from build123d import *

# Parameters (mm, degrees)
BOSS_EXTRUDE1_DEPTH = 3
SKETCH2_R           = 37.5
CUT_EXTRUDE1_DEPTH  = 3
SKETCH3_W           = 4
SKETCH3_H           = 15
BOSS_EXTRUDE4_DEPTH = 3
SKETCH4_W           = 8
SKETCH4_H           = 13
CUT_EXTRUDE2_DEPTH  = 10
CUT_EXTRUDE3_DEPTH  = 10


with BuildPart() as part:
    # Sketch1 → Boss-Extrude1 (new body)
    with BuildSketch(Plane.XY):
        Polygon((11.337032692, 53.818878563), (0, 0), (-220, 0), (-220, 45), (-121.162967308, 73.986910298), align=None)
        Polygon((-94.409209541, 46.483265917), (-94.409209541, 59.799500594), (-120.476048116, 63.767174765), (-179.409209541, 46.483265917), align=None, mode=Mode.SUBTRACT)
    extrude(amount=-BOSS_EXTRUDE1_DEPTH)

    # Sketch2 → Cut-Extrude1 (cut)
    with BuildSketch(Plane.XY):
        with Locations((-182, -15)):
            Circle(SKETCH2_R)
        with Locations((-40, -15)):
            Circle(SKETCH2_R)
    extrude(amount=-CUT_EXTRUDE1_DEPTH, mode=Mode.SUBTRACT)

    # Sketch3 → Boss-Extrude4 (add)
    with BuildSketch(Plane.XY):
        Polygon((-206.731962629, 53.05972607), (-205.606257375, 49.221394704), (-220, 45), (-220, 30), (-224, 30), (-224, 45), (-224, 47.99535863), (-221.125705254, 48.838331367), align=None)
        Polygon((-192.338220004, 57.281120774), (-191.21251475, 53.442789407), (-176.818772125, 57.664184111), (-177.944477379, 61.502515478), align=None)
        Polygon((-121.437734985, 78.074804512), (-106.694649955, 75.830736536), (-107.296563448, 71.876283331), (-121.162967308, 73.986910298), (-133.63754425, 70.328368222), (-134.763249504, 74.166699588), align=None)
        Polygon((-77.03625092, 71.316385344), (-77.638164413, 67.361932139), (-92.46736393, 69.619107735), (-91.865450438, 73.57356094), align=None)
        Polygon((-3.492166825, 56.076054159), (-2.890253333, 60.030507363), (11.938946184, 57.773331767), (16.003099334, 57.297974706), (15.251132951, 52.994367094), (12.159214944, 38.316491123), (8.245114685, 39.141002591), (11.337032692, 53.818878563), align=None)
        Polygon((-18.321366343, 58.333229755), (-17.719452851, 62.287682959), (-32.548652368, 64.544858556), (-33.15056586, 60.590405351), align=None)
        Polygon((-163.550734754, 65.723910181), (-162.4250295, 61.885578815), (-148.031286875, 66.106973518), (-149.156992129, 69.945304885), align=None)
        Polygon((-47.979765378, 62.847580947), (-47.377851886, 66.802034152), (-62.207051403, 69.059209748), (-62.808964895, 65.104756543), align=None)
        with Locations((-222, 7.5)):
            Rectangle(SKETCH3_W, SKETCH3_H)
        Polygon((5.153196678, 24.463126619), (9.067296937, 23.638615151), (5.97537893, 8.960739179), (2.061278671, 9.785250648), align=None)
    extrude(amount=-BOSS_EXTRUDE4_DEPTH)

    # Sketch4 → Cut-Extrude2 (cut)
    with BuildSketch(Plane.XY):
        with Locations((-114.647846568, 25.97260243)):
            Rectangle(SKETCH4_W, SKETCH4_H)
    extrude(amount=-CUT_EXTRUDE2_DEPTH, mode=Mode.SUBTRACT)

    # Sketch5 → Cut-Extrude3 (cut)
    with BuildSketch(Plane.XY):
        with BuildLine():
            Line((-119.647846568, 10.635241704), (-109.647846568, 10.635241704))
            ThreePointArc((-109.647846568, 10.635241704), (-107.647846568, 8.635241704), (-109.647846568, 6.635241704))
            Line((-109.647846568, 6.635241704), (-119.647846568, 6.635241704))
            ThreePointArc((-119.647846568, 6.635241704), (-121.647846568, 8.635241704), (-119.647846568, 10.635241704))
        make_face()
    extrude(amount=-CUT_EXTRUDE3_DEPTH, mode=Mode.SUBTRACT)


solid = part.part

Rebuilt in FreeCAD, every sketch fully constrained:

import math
import FreeCAD as App
import Part
import Sketcher
from FreeCAD import Vector
Q = App.Units.Quantity

doc = App.newDocument("Part")
body = doc.addObject("PartDesign::Body", "Body")

sketch1 = body.newObject("Sketcher::SketchObject", "Sketch")
sketch1.AttachmentSupport = (doc.getObject("XY_Plane"), [""])
sketch1.MapMode = "FlatFace"
sketch1.addGeometry([
    Part.LineSegment(Vector(0, 0, 0), Vector(11, 54, 0)),
    Part.LineSegment(Vector(11, 54, 0), Vector(-121, 74, 0)),
    Part.LineSegment(Vector(-121, 74, 0), Vector(-220, 45, 0)),
    Part.LineSegment(Vector(-220, 45, 0), Vector(-220, 0, 0)),
    Part.LineSegment(Vector(-220, 0, 0), Vector(0, 0, 0)),
    Part.LineSegment(Vector(-94, 46, 0), Vector(-179, 46, 0)),
    Part.LineSegment(Vector(-179, 46, 0), Vector(-120, 64, 0)),
    Part.LineSegment(Vector(-120, 64, 0), Vector(-94, 60, 0)),
    Part.LineSegment(Vector(-94, 60, 0), Vector(-94, 46, 0)),
], False)
sketch1.addConstraint([
    Sketcher.Constraint("Coincident", 0, 2, 1, 1),
    Sketcher.Constraint("Coincident", 1, 2, 2, 1),
    Sketcher.Constraint("Coincident", 2, 2, 3, 1),
    Sketcher.Constraint("Coincident", 3, 2, 4, 1),
    Sketcher.Constraint("Coincident", 4, 2, 0, 1),
    Sketcher.Constraint("Coincident", 5, 2, 6, 1),
    Sketcher.Constraint("Coincident", 6, 2, 7, 1),
    Sketcher.Constraint("Coincident", 7, 2, 8, 1),
    Sketcher.Constraint("Coincident", 8, 2, 5, 1),
    Sketcher.Constraint("Vertical", 3),
    Sketcher.Constraint("Horizontal", 4),
    Sketcher.Constraint("Horizontal", 5),
    Sketcher.Constraint("Vertical", 8),
    Sketcher.Constraint("Coincident", 4, 2, -1, 1),
    Sketcher.Constraint("Parallel", 2, 6),
    Sketcher.Constraint("Parallel", 1, 7),
    Sketcher.Constraint("DistanceX", 4, 1, 4, 2, Q("220 mm")),
    Sketcher.Constraint("DistanceX", 5, 2, 5, 1, Q("85 mm")),
    Sketcher.Constraint("DistanceY", 3, 2, 3, 1, Q("45 mm")),
    Sketcher.Constraint("Distance", 0, Q("55 mm")),
    Sketcher.Constraint("Distance", 2, Q("103 mm")),
    Sketcher.Constraint("DistanceX", 1, 2, 0, 2, Q("132.5 mm")),
    Sketcher.Constraint("DistanceY", -1, 1, 7, 2, Q("59.799501 mm")),
    Sketcher.Constraint("DistanceY", 8, 2, 8, 1, Q("13.316235 mm")),
    Sketcher.Constraint("DistanceY", -1, 1, 0, 2, Q("53.818879 mm")),
    Sketcher.Constraint("DistanceX", 5, 2, -1, 1, Q("179.40921 mm")),
])
pad1 = body.newObject("PartDesign::Pad", "Pad")
pad1.Profile = sketch1
pad1.Length = 3
pad1.Reversed = True

sketch2 = body.newObject("Sketcher::SketchObject", "Sketch001")
sketch2.AttachmentSupport = (doc.getObject("XY_Plane"), [""])
sketch2.MapMode = "FlatFace"
sketch2.addGeometry([
    Part.Circle(Vector(-182, -15, 0), Vector(0, 0, 1), 38),
    Part.Circle(Vector(-40, -15, 0), Vector(0, 0, 1), 38),
], False)
sketch2.addConstraint([
    Sketcher.Constraint("Equal", 0, 1),
    Sketcher.Constraint("Horizontal", 0, 3, 1, 3),
    Sketcher.Constraint("Diameter", 0, Q("75 mm")),
    Sketcher.Constraint("DistanceX", 0, 3, -1, 1, Q("182 mm")),
    Sketcher.Constraint("DistanceY", 0, 3, -1, 1, Q("15 mm")),
    Sketcher.Constraint("DistanceX", 1, 3, -1, 1, Q("40 mm")),
])
pocket1 = body.newObject("PartDesign::Pocket", "Pocket")
pocket1.Profile = sketch2
pocket1.Length = 3

sketch3 = body.newObject("Sketcher::SketchObject", "Sketch002")
sketch3.AttachmentSupport = (doc.getObject("XY_Plane"), [""])
sketch3.MapMode = "FlatFace"
sketch3.addGeometry([
    Part.LineSegment(Vector(-205.6, 49.2, 0), Vector(-206.7, 53.1, 0)),
    Part.LineSegment(Vector(-206.7, 53.1, 0), Vector(-221.1, 48.8, 0)),
    Part.LineSegment(Vector(-221.1, 48.8, 0), Vector(-224, 48, 0)),
    Part.LineSegment(Vector(-224, 48, 0), Vector(-224, 30, 0)),
    Part.LineSegment(Vector(-224, 30, 0), Vector(-220, 30, 0)),
    Part.LineSegment(Vector(-220, 30, 0), Vector(-220, 45, 0)),
    Part.LineSegment(Vector(-220, 45, 0), Vector(-205.6, 49.2, 0)),
    Part.LineSegment(Vector(-192.3, 57.3, 0), Vector(-191.2, 53.4, 0)),
    Part.LineSegment(Vector(-191.2, 53.4, 0), Vector(-176.8, 57.7, 0)),
    Part.LineSegment(Vector(-176.8, 57.7, 0), Vector(-177.9, 61.5, 0)),
    Part.LineSegment(Vector(-177.9, 61.5, 0), Vector(-192.3, 57.3, 0)),
    Part.LineSegment(Vector(-106.7, 75.8, 0), Vector(-121.4, 78.1, 0)),
    Part.LineSegment(Vector(-121.4, 78.1, 0), Vector(-134.8, 74.2, 0)),
    Part.LineSegment(Vector(-134.8, 74.2, 0), Vector(-133.6, 70.3, 0)),
    Part.LineSegment(Vector(-133.6, 70.3, 0), Vector(-121.2, 74, 0)),
    Part.LineSegment(Vector(-121.2, 74, 0), Vector(-107.3, 71.9, 0)),
    Part.LineSegment(Vector(-107.3, 71.9, 0), Vector(-106.7, 75.8, 0)),
    Part.LineSegment(Vector(-77.6, 67.4, 0), Vector(-77, 71.3, 0)),
    Part.LineSegment(Vector(-77, 71.3, 0), Vector(-91.9, 73.6, 0)),
    Part.LineSegment(Vector(-91.9, 73.6, 0), Vector(-92.5, 69.6, 0)),
    Part.LineSegment(Vector(-92.5, 69.6, 0), Vector(-77.6, 67.4, 0)),
    Part.LineSegment(Vector(-2.9, 60, 0), Vector(-3.5, 56.1, 0)),
    Part.LineSegment(Vector(-3.5, 56.1, 0), Vector(11.3, 53.8, 0)),
    Part.LineSegment(Vector(11.3, 53.8, 0), Vector(8.2, 39.1, 0)),
    Part.LineSegment(Vector(8.2, 39.1, 0), Vector(12.2, 38.3, 0)),
    Part.LineSegment(Vector(12.2, 38.3, 0), Vector(15.3, 53, 0)),
    Part.LineSegment(Vector(15.3, 53, 0), Vector(16, 57.3, 0)),
    Part.LineSegment(Vector(16, 57.3, 0), Vector(11.9, 57.8, 0)),
    Part.LineSegment(Vector(11.9, 57.8, 0), Vector(-2.9, 60, 0)),
    Part.LineSegment(Vector(-18.3, 58.3, 0), Vector(-17.7, 62.3, 0)),
    Part.LineSegment(Vector(-17.7, 62.3, 0), Vector(-32.5, 64.5, 0)),
    Part.LineSegment(Vector(-32.5, 64.5, 0), Vector(-33.2, 60.6, 0)),
    Part.LineSegment(Vector(-33.2, 60.6, 0), Vector(-18.3, 58.3, 0)),
    Part.LineSegment(Vector(-163.6, 65.7, 0), Vector(-162.4, 61.9, 0)),
    Part.LineSegment(Vector(-162.4, 61.9, 0), Vector(-148, 66.1, 0)),
    Part.LineSegment(Vector(-148, 66.1, 0), Vector(-149.2, 69.9, 0)),
    Part.LineSegment(Vector(-149.2, 69.9, 0), Vector(-163.6, 65.7, 0)),
    Part.LineSegment(Vector(-48, 62.8, 0), Vector(-47.4, 66.8, 0)),
    Part.LineSegment(Vector(-47.4, 66.8, 0), Vector(-62.2, 69.1, 0)),
    Part.LineSegment(Vector(-62.2, 69.1, 0), Vector(-62.8, 65.1, 0)),
    Part.LineSegment(Vector(-62.8, 65.1, 0), Vector(-48, 62.8, 0)),
    Part.LineSegment(Vector(-224, 15, 0), Vector(-224, 0, 0)),
    Part.LineSegment(Vector(-224, 0, 0), Vector(-220, 0, 0)),
    Part.LineSegment(Vector(-220, 0, 0), Vector(-220, 15, 0)),
    Part.LineSegment(Vector(-220, 15, 0), Vector(-224, 15, 0)),
    Part.LineSegment(Vector(9.1, 23.6, 0), Vector(5.2, 24.5, 0)),
    Part.LineSegment(Vector(5.2, 24.5, 0), Vector(2.1, 9.8, 0)),
    Part.LineSegment(Vector(2.1, 9.8, 0), Vector(6, 9, 0)),
    Part.LineSegment(Vector(6, 9, 0), Vector(9.1, 23.6, 0)),
], False)
sketch3.addConstraint([
    Sketcher.Constraint("Coincident", 0, 2, 1, 1),
    Sketcher.Constraint("Coincident", 1, 2, 2, 1),
    Sketcher.Constraint("Coincident", 2, 2, 3, 1),
    Sketcher.Constraint("Coincident", 3, 2, 4, 1),
    Sketcher.Constraint("Coincident", 4, 2, 5, 1),
    Sketcher.Constraint("Coincident", 5, 2, 6, 1),
    Sketcher.Constraint("Coincident", 6, 2, 0, 1),
    Sketcher.Constraint("Coincident", 7, 2, 8, 1),
    Sketcher.Constraint("Coincident", 8, 2, 9, 1),
    Sketcher.Constraint("Coincident", 9, 2, 10, 1),
    Sketcher.Constraint("Coincident", 10, 2, 7, 1),
    Sketcher.Constraint("Coincident", 11, 2, 12, 1),
    Sketcher.Constraint("Coincident", 12, 2, 13, 1),
    Sketcher.Constraint("Coincident", 13, 2, 14, 1),
    Sketcher.Constraint("Coincident", 14, 2, 15, 1),
    Sketcher.Constraint("Coincident", 15, 2, 16, 1),
    Sketcher.Constraint("Coincident", 16, 2, 11, 1),
    Sketcher.Constraint("Coincident", 17, 2, 18, 1),
    Sketcher.Constraint("Coincident", 18, 2, 19, 1),
    Sketcher.Constraint("Coincident", 19, 2, 20, 1),
    Sketcher.Constraint("Coincident", 20, 2, 17, 1),
    Sketcher.Constraint("Coincident", 21, 2, 22, 1),
    Sketcher.Constraint("Coincident", 22, 2, 23, 1),
    Sketcher.Constraint("Coincident", 23, 2, 24, 1),
    Sketcher.Constraint("Coincident", 24, 2, 25, 1),
    Sketcher.Constraint("Coincident", 25, 2, 26, 1),
    Sketcher.Constraint("Coincident", 26, 2, 27, 1),
    Sketcher.Constraint("Coincident", 27, 2, 28, 1),
    Sketcher.Constraint("Coincident", 28, 2, 21, 1),
    Sketcher.Constraint("Coincident", 29, 2, 30, 1),
    Sketcher.Constraint("Coincident", 30, 2, 31, 1),
    Sketcher.Constraint("Coincident", 31, 2, 32, 1),
    Sketcher.Constraint("Coincident", 32, 2, 29, 1),
    Sketcher.Constraint("Coincident", 33, 2, 34, 1),
    Sketcher.Constraint("Coincident", 34, 2, 35, 1),
    Sketcher.Constraint("Coincident", 35, 2, 36, 1),
    Sketcher.Constraint("Coincident", 36, 2, 33, 1),
    Sketcher.Constraint("Coincident", 37, 2, 38, 1),
    Sketcher.Constraint("Coincident", 38, 2, 39, 1),
    Sketcher.Constraint("Coincident", 39, 2, 40, 1),
    Sketcher.Constraint("Coincident", 40, 2, 37, 1),
    Sketcher.Constraint("Coincident", 41, 2, 42, 1),
    Sketcher.Constraint("Coincident", 42, 2, 43, 1),
    Sketcher.Constraint("Coincident", 43, 2, 44, 1),
    Sketcher.Constraint("Coincident", 44, 2, 41, 1),
    Sketcher.Constraint("Coincident", 45, 2, 46, 1),
    Sketcher.Constraint("Coincident", 46, 2, 47, 1),
    Sketcher.Constraint("Coincident", 47, 2, 48, 1),
    Sketcher.Constraint("Coincident", 48, 2, 45, 1),
    Sketcher.Constraint("Vertical", 3),
    Sketcher.Constraint("Horizontal", 4),
    Sketcher.Constraint("Vertical", 5),
    Sketcher.Constraint("Vertical", 41),
    Sketcher.Constraint("Horizontal", 42),
    Sketcher.Constraint("Vertical", 43),
    Sketcher.Constraint("Horizontal", 44),
    Sketcher.Constraint("PointOnObject", 41, 2, -1),
    Sketcher.Constraint("Perpendicular", 0, 1),
    Sketcher.Constraint("Parallel", 1, 2),
    Sketcher.Constraint("Parallel", 2, 6),
    Sketcher.Constraint("Perpendicular", 6, 7),
    Sketcher.Constraint("Perpendicular", 7, 8),
    Sketcher.Constraint("Perpendicular", 8, 9),
    Sketcher.Constraint("Perpendicular", 9, 10),
    Sketcher.Constraint("Parallel", 10, 12),
    Sketcher.Constraint("Perpendicular", 12, 13),
    Sketcher.Constraint("Perpendicular", 13, 14),
    Sketcher.Constraint("Parallel", 11, 15),
    Sketcher.Constraint("Perpendicular", 15, 16),
    Sketcher.Constraint("Parallel", 16, 17),
    Sketcher.Constraint("Perpendicular", 17, 18),
    Sketcher.Constraint("Perpendicular", 18, 19),
    Sketcher.Constraint("Perpendicular", 19, 20),
    Sketcher.Constraint("Perpendicular", 20, 21),
    Sketcher.Constraint("Perpendicular", 21, 22),
    Sketcher.Constraint("Perpendicular", 23, 24),
    Sketcher.Constraint("Perpendicular", 24, 25),
    Sketcher.Constraint("Parallel", 22, 28),
    Sketcher.Constraint("Perpendicular", 28, 29),
    Sketcher.Constraint("Perpendicular", 29, 30),
    Sketcher.Constraint("Perpendicular", 30, 31),
    Sketcher.Constraint("Perpendicular", 31, 32),
    Sketcher.Constraint("Perpendicular", 14, 33),
    Sketcher.Constraint("Perpendicular", 33, 34),
    Sketcher.Constraint("Perpendicular", 34, 35),
    Sketcher.Constraint("Perpendicular", 35, 36),
    Sketcher.Constraint("Perpendicular", 32, 37),
    Sketcher.Constraint("Perpendicular", 37, 38),
    Sketcher.Constraint("Perpendicular", 38, 39),
    Sketcher.Constraint("Perpendicular", 39, 40),
    Sketcher.Constraint("Perpendicular", 25, 45),
    Sketcher.Constraint("Perpendicular", 45, 46),
    Sketcher.Constraint("Perpendicular", 46, 47),
    Sketcher.Constraint("Perpendicular", 47, 48),
    Sketcher.Constraint("Vertical", 3, 2, 41, 2),
    Sketcher.Constraint("Vertical", 5, 2, 42, 2),
    Sketcher.Constraint("Equal", 5, 41),
    Sketcher.Constraint("Equal", 1, 6),
    Sketcher.Constraint("Equal", 0, 7),
    Sketcher.Constraint("Equal", 6, 8),
    Sketcher.Constraint("Equal", 9, 13),
    Sketcher.Constraint("Equal", 13, 16),
    Sketcher.Constraint("Equal", 16, 17),
    Sketcher.Constraint("Equal", 10, 18),
    Sketcher.Constraint("Equal", 19, 21),
    Sketcher.Constraint("Equal", 20, 22),
    Sketcher.Constraint("Equal", 22, 23),
    Sketcher.Constraint("Equal", 21, 24),
    Sketcher.Constraint("Equal", 23, 25),
    Sketcher.Constraint("Equal", 25, 28),
    Sketcher.Constraint("Equal", 24, 29),
    Sketcher.Constraint("Equal", 28, 30),
    Sketcher.Constraint("Equal", 31, 33),
    Sketcher.Constraint("Equal", 32, 34),
    Sketcher.Constraint("Equal", 35, 37),
    Sketcher.Constraint("Equal", 36, 38),
    Sketcher.Constraint("Equal", 39, 45),
    Sketcher.Constraint("Equal", 40, 46),
    Sketcher.Constraint("DistanceX", 4, 1, 4, 2, Q("4 mm")),
    Sketcher.Constraint("DistanceY", 5, 1, 5, 2, Q("15 mm")),
    Sketcher.Constraint("Distance", 0, Q("4 mm")),
    Sketcher.Constraint("Distance", 1, Q("15 mm")),
    Sketcher.Constraint("Distance", 14, Q("13 mm")),
    Sketcher.Constraint("DistanceX", 2, 2, -1, 1, Q("224 mm")),
    Sketcher.Constraint("DistanceY", -1, 1, 3, 2, Q("30 mm")),
    Sketcher.Constraint("DistanceY", 3, 2, 3, 1, Q("17.995359 mm")),
    Sketcher.Constraint("DistanceY", -1, 1, 12, 2, Q("74.1667 mm")),
    Sketcher.Constraint("DistanceX", -1, 1, 26, 2, Q("16.003099 mm")),
    Sketcher.Constraint("DistanceY", 8, 2, 15, 2, Q("14.212099 mm")),
    Sketcher.Constraint("DistanceX", 12, 2, 16, 2, Q("28.0686 mm")),
    Sketcher.Constraint("DistanceX", 16, 2, 17, 2, Q("29.658399 mm")),
    Sketcher.Constraint("DistanceX", 16, 2, 18, 2, Q("14.8292 mm")),
    Sketcher.Constraint("DistanceX", 23, 2, 24, 2, Q("3.9141 mm")),
    Sketcher.Constraint("DistanceX", 29, 2, 28, 2, Q("14.8292 mm")),
    Sketcher.Constraint("DistanceX", 17, 2, 30, 2, Q("44.487599 mm")),
    Sketcher.Constraint("DistanceX", 37, 2, 30, 2, Q("14.8292 mm")),
    Sketcher.Constraint("Distance", 26, Q("4.368809 mm")),
    Sketcher.Constraint("Distance", 27, Q("4.091858 mm")),
    Sketcher.Constraint("DistanceX", 10, 2, -1, 1, Q("192.33822 mm")),
    Sketcher.Constraint("DistanceY", -1, 1, 18, 2, Q("73.573561 mm")),
    Sketcher.Constraint("DistanceY", -1, 1, 22, 2, Q("53.818879 mm")),
    Sketcher.Constraint("DistanceY", -1, 1, 30, 2, Q("64.544859 mm")),
    Sketcher.Constraint("DistanceX", 33, 2, -1, 1, Q("162.425029 mm")),
    Sketcher.Constraint("DistanceY", -1, 1, 33, 2, Q("61.885579 mm")),
    Sketcher.Constraint("DistanceY", -1, 1, 38, 2, Q("69.05921 mm")),
    Sketcher.Constraint("DistanceX", -1, 1, 46, 2, Q("2.061279 mm")),
    Sketcher.Constraint("DistanceY", -1, 1, 46, 2, Q("9.785251 mm")),
])
pad2 = body.newObject("PartDesign::Pad", "Pad001")
pad2.Profile = sketch3
pad2.Length = 3
pad2.Reversed = True

sketch4 = body.newObject("Sketcher::SketchObject", "Sketch003")
sketch4.AttachmentSupport = (doc.getObject("XY_Plane"), [""])
sketch4.MapMode = "FlatFace"
sketch4.addGeometry([
    Part.LineSegment(Vector(-119, 32, 0), Vector(-119, 19, 0)),
    Part.LineSegment(Vector(-119, 19, 0), Vector(-111, 19, 0)),
    Part.LineSegment(Vector(-111, 19, 0), Vector(-111, 32, 0)),
    Part.LineSegment(Vector(-111, 32, 0), Vector(-119, 32, 0)),
], False)
sketch4.addConstraint([
    Sketcher.Constraint("Coincident", 0, 2, 1, 1),
    Sketcher.Constraint("Coincident", 1, 2, 2, 1),
    Sketcher.Constraint("Coincident", 2, 2, 3, 1),
    Sketcher.Constraint("Coincident", 3, 2, 0, 1),
    Sketcher.Constraint("Vertical", 0),
    Sketcher.Constraint("Horizontal", 1),
    Sketcher.Constraint("Vertical", 2),
    Sketcher.Constraint("Horizontal", 3),
    Sketcher.Constraint("DistanceX", 1, 1, 1, 2, Q("8 mm")),
    Sketcher.Constraint("DistanceY", 0, 2, 0, 1, Q("13 mm")),
    Sketcher.Constraint("DistanceX", 0, 2, -1, 1, Q("118.647847 mm")),
    Sketcher.Constraint("DistanceY", -1, 1, 0, 2, Q("19.472602 mm")),
])
pocket2 = body.newObject("PartDesign::Pocket", "Pocket001")
pocket2.Profile = sketch4
pocket2.Length = 10

sketch5 = body.newObject("Sketcher::SketchObject", "Sketch004")
sketch5.AttachmentSupport = (doc.getObject("XY_Plane"), [""])
sketch5.MapMode = "FlatFace"
sketch5.addGeometry([
    Part.LineSegment(Vector(-109.6, 10.6, 0), Vector(-119.6, 10.6, 0)),
    Part.ArcOfCircle(Part.Circle(Vector(-119.6, 8.6, 0), Vector(0, 0, 1), 2), math.radians(90), math.radians(270)),
    Part.LineSegment(Vector(-119.6, 6.6, 0), Vector(-109.6, 6.6, 0)),
    Part.ArcOfCircle(Part.Circle(Vector(-109.6, 8.6, 0), Vector(0, 0, 1), 2), math.radians(-90), math.radians(90)),
], False)
sketch5.addConstraint([
    Sketcher.Constraint("Tangent", 0, 2, 1, 1),
    Sketcher.Constraint("Tangent", 1, 2, 2, 1),
    Sketcher.Constraint("Tangent", 2, 2, 3, 1),
    Sketcher.Constraint("Tangent", 3, 2, 0, 1),
    Sketcher.Constraint("Horizontal", 0),
    Sketcher.Constraint("Horizontal", 2),
    Sketcher.Constraint("Radius", 1, Q("2 mm")),
    Sketcher.Constraint("DistanceX", 0, 2, 0, 1, Q("10 mm")),
    Sketcher.Constraint("DistanceY", -1, 1, 1, 3, Q("8.635242 mm")),
    Sketcher.Constraint("DistanceX", 1, 3, -1, 1, Q("119.647847 mm")),
])
pocket3 = body.newObject("PartDesign::Pocket", "Pocket002")
pocket3.Profile = sketch5
pocket3.Length = 10

doc.recompute()
